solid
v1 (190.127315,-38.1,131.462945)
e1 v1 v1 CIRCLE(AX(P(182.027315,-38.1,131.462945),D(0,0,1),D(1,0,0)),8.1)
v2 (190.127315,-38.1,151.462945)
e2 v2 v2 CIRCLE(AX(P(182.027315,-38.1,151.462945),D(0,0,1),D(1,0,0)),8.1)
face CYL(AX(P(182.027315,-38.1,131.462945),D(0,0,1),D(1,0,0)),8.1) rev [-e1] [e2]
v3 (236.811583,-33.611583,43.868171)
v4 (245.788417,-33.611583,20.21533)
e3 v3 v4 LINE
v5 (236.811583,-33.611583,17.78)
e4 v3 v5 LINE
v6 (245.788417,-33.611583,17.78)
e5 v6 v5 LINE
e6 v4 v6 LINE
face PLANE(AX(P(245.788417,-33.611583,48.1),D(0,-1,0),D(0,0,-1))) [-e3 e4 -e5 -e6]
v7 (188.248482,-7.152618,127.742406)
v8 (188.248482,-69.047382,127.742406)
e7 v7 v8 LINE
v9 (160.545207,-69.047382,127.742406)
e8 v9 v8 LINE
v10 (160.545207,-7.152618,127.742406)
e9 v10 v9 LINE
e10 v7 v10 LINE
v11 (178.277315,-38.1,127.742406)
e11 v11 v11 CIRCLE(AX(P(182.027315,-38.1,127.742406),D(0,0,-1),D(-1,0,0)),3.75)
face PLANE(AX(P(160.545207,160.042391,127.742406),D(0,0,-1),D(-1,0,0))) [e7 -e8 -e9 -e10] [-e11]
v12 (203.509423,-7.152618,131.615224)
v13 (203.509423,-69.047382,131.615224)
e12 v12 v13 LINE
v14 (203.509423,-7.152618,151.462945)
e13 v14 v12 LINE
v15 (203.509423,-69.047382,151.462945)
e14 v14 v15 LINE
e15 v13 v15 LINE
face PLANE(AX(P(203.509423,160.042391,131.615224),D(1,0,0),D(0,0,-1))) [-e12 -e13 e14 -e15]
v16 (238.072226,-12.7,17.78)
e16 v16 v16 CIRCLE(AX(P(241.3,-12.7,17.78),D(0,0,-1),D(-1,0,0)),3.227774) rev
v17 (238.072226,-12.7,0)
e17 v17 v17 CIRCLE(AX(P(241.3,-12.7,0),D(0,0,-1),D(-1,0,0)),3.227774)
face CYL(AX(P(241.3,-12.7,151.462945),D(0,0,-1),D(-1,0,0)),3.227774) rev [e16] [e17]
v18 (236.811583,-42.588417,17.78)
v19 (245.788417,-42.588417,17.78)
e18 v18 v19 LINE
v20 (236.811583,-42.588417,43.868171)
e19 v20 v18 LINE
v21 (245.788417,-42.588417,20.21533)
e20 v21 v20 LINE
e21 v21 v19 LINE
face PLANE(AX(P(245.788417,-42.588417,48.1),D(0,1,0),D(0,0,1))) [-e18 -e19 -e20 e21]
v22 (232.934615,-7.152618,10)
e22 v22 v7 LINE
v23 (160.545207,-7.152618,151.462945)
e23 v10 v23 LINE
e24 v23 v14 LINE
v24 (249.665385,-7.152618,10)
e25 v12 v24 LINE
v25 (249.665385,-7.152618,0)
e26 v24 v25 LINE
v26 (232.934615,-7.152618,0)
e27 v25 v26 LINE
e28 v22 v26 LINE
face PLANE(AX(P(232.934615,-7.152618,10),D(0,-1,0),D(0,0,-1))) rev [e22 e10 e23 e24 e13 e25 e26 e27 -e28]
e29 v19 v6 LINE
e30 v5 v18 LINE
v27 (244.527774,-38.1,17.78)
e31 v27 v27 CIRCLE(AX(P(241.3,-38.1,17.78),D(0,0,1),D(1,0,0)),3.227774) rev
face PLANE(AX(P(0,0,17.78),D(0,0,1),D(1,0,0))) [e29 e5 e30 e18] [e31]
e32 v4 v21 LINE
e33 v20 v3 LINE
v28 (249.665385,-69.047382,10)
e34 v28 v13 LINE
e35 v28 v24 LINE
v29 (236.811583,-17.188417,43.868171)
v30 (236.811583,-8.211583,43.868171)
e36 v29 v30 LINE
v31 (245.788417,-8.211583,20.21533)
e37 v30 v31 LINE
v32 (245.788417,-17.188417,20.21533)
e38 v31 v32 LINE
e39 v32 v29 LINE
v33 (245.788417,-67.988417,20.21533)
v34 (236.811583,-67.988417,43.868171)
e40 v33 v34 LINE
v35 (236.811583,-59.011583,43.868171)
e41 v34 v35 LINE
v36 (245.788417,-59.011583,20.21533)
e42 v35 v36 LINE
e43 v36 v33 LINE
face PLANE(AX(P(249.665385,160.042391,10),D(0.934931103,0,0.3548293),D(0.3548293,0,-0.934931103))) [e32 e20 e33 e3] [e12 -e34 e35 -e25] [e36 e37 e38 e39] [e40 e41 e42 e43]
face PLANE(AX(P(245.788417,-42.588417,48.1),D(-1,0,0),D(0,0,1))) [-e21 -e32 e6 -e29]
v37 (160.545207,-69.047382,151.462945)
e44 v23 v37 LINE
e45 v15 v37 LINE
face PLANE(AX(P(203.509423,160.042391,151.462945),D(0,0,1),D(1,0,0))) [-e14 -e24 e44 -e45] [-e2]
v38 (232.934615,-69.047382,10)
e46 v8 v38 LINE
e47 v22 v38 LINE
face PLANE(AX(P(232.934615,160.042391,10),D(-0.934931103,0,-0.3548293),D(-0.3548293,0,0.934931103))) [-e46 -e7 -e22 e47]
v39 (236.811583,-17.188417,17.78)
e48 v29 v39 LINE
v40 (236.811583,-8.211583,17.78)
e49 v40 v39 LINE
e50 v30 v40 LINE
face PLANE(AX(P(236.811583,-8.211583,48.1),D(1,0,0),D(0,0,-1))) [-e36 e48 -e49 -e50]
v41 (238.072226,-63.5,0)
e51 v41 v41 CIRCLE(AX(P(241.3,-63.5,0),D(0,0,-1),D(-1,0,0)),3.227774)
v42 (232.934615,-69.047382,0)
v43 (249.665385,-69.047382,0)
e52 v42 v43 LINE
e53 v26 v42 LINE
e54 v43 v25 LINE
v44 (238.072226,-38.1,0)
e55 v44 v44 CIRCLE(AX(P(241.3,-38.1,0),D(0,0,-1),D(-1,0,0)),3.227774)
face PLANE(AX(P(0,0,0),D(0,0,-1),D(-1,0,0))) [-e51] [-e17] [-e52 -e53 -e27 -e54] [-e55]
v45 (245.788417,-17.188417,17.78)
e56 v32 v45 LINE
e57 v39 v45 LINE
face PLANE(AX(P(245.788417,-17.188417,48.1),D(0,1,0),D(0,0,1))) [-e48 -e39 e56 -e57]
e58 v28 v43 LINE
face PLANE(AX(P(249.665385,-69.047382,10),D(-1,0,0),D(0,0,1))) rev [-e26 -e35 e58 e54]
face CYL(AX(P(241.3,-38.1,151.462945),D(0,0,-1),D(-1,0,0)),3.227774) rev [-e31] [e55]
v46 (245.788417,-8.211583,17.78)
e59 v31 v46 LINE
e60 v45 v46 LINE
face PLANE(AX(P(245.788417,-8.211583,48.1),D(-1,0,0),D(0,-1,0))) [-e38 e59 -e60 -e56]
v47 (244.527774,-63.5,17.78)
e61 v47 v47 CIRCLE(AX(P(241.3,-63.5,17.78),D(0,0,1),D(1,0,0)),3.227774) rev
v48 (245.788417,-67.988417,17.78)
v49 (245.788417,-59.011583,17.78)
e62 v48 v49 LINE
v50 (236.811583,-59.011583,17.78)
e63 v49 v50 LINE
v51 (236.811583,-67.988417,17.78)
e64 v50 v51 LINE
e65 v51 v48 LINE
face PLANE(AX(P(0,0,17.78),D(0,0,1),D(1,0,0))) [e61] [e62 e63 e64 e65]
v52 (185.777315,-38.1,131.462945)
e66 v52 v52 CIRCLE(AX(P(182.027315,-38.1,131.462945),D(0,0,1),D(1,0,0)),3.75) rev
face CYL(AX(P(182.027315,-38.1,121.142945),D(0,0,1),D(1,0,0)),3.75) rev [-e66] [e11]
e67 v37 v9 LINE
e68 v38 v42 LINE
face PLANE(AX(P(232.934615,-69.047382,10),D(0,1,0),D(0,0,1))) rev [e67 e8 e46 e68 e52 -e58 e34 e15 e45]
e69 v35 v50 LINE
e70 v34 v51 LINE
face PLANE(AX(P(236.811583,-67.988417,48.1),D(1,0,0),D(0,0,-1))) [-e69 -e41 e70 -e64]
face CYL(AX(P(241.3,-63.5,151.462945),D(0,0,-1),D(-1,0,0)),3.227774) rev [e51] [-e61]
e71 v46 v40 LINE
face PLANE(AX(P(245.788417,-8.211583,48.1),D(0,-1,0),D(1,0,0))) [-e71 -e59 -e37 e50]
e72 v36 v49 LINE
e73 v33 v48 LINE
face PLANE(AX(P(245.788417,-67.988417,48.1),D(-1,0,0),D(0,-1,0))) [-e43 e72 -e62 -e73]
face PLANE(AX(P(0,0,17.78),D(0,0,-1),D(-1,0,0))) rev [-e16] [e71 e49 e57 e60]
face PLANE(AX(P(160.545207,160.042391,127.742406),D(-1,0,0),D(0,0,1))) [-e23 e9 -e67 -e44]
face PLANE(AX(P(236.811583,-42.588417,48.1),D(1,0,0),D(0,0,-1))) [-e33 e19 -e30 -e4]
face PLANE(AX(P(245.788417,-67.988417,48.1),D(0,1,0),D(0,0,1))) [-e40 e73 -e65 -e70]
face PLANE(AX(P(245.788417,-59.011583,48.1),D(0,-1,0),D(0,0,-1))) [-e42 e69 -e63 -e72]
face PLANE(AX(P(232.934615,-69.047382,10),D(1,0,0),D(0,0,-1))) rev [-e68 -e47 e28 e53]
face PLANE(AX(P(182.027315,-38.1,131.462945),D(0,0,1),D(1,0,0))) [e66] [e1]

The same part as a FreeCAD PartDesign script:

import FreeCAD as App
import Part
import Sketcher

V = App.Vector


def add_polygon(sketch, points):
    """Adds a closed chain of lines whose ends are joined by coincident constraints."""
    first, n = sketch.GeometryCount, len(points)
    for a, b in zip(points, points[1:] + points[:1]):
        sketch.addGeometry(Part.LineSegment(App.Vector(*a, 0), App.Vector(*b, 0)), False)
    for i in range(n):
        sketch.addConstraint(Sketcher.Constraint("Coincident", first + i, 2, first + (i + 1) % n, 1))

doc = App.newDocument("Part")
body = doc.addObject("PartDesign::Body", "Body")

sketch1 = doc.addObject("Sketcher::SketchObject", "Sketch")
body.addObject(sketch1)
sketch1.AttachmentSupport = (doc.XY_Plane, [""])
sketch1.MapMode = "FlatFace"
add_polygon(sketch1, [(232.934615, -7.152618), (232.934615, -69.047382), (249.665385, -69.047382), (249.665385, -7.152618)])
sketch1.addGeometry(Part.Circle(V(241.3, -63.5, 0), V(0, 0, 1), 3.04823), False)
sketch1.addGeometry(Part.Circle(V(241.3, -38.1, 0), V(0, 0, 1), 3.04823), False)
sketch1.addGeometry(Part.Circle(V(241.3, -12.7, 0), V(0, 0, 1), 3.04823), False)
sketch1.addConstraint([
    Sketcher.Constraint("Vertical", 0),
    Sketcher.Constraint("Horizontal", 1),
    Sketcher.Constraint("Vertical", 2),
    Sketcher.Constraint("Horizontal", 3),
    Sketcher.Constraint("Equal", 4, 5),
    Sketcher.Constraint("Equal", 5, 6),
    Sketcher.Constraint("Vertical", 4, 3, 5, 3),
    Sketcher.Constraint("Vertical", 5, 3, 6, 3),
    Sketcher.Constraint("DistanceX", -1, 1, 4, 3, 241.3),
    Sketcher.Constraint("DistanceY", 4, 3, -1, 1, 63.5),
    Sketcher.Constraint("DistanceY", 5, 3, -1, 1, 38.1),
    Sketcher.Constraint("DistanceY", 6, 3, -1, 1, 12.7),
    Sketcher.Constraint("Diameter", 4, 6.09646),
    Sketcher.Constraint("DistanceX", 1, 1, 1, 2, 16.73077),
    Sketcher.Constraint("DistanceY", 0, 2, 0, 1, 61.894765),
    Sketcher.Constraint("DistanceX", -1, 1, 0, 2, 232.934615),
    Sketcher.Constraint("DistanceY", 0, 2, -1, 1, 69.047382),
])
pad1 = doc.addObject("PartDesign::Pad", "Pad")
body.addObject(pad1)
pad1.Profile = sketch1
pad1.Length = 10

sketch2 = doc.addObject("Sketcher::SketchObject", "Sketch001")
body.addObject(sketch2)
sketch2.AttachmentSupport = (doc.XZ_Plane, [""])
sketch2.MapMode = "FlatFace"
sketch2.AttachmentOffset = App.Placement(V(0, 0, 69.047382), App.Rotation())
add_polygon(sketch2, [(249.665385, 10), (203.509423, 131.615224), (203.509423, 151.462945), (160.545207, 151.462945), (160.545207, 127.742406), (188.248482, 127.742406), (232.934615, 10)])
sketch2.addConstraint([
    Sketcher.Constraint("Vertical", 1),
    Sketcher.Constraint("Horizontal", 2),
    Sketcher.Constraint("Vertical", 3),
    Sketcher.Constraint("Horizontal", 4),
    Sketcher.Constraint("Horizontal", 6),
    Sketcher.Constraint("Parallel", 0, 5),
    Sketcher.Constraint("DistanceY", -1, 1, 5, 2, 10.0),
    Sketcher.Constraint("DistanceX", 6, 1, 6, 2, 16.73077),
    Sketcher.Constraint("DistanceY", 1, 1, 1, 2, 19.84772),
    Sketcher.Constraint("DistanceY", 3, 2, 3, 1, 23.720539),
    Sketcher.Constraint("DistanceX", 2, 2, 2, 1, 42.964216),
    Sketcher.Constraint("DistanceX", 4, 1, 4, 2, 27.703275),
    Sketcher.Constraint("DistanceX", 3, 2, 5, 2, 72.389408),
    Sketcher.Constraint("DistanceX", -1, 1, 0, 2, 203.509423),
])
pad2 = doc.addObject("PartDesign::Pad", "Pad001")
body.addObject(pad2)
pad2.Profile = sketch2
pad2.Length = 61.894765
pad2.Reversed = True

sketch3 = doc.addObject("Sketcher::SketchObject", "Sketch002")
body.addObject(sketch3)
sketch3.AttachmentSupport = (doc.XY_Plane, [""])
sketch3.MapMode = "FlatFace"
sketch3.addGeometry([
    Part.Circle(V(241.3, -63.5, 0), V(0, 0, 1), 3.227774),
    Part.Circle(V(241.3, -38.1, 0), V(0, 0, 1), 3.227774),
    Part.Circle(V(241.3, -12.7, 0), V(0, 0, 1), 3.227774),
], False)
sketch3.addConstraint([
    Sketcher.Constraint("Equal", 0, 1),
    Sketcher.Constraint("Equal", 1, 2),
    Sketcher.Constraint("Vertical", 0, 3, 1, 3),
    Sketcher.Constraint("Vertical", 1, 3, 2, 3),
    Sketcher.Constraint("DistanceX", -1, 1, 0, 3, 241.3),
    Sketcher.Constraint("DistanceY", 0, 3, -1, 1, 63.5),
    Sketcher.Constraint("DistanceY", 1, 3, -1, 1, 38.1),
    Sketcher.Constraint("DistanceY", 2, 3, -1, 1, 12.7),
    Sketcher.Constraint("Diameter", 0, 6.455548),
])
pocket1 = doc.addObject("PartDesign::Pocket", "Pocket")
body.addObject(pocket1)
pocket1.Profile = sketch3
pocket1.Type = "ThroughAll"
pocket1.Reversed = True

sketch4 = doc.addObject("Sketcher::SketchObject", "Sketch003")
body.addObject(sketch4)
sketch4.AttachmentSupport = (doc.XY_Plane, [""])
sketch4.MapMode = "FlatFace"
sketch4.AttachmentOffset = App.Placement(V(0, 0, 17.78), App.Rotation())
add_polygon(sketch4, [(236.811583, -59.011583), (236.811583, -67.988417), (245.788417, -67.988417), (245.788417, -59.011583)])
add_polygon(sketch4, [(236.811583, -33.611583), (236.811583, -42.588417), (245.788417, -42.588417), (245.788417, -33.611583)])
add_polygon(sketch4, [(236.811583, -8.211583), (236.811583, -17.188417), (245.788417, -17.188417), (245.788417, -8.211583)])
sketch4.addConstraint([
    Sketcher.Constraint("Vertical", 0),
    Sketcher.Constraint("Horizontal", 1),
    Sketcher.Constraint("Vertical", 2),
    Sketcher.Constraint("Horizontal", 3),
    Sketcher.Constraint("Vertical", 4),
    Sketcher.Constraint("Horizontal", 5),
    Sketcher.Constraint("Vertical", 6),
    Sketcher.Constraint("Horizontal", 7),
    Sketcher.Constraint("Vertical", 8),
    Sketcher.Constraint("Horizontal", 9),
    Sketcher.Constraint("Vertical", 10),
    Sketcher.Constraint("Horizontal", 11),
    Sketcher.Constraint("Vertical", 3, 2, 4, 2),
    Sketcher.Constraint("Vertical", 2, 2, 5, 2),
    Sketcher.Constraint("Vertical", 7, 2, 8, 2),
    Sketcher.Constraint("Vertical", 6, 2, 9, 2),
    Sketcher.Constraint("Equal", 11, 0),
    Sketcher.Constraint("Equal", 2, 4),
    Sketcher.Constraint("Equal", 6, 8),
    Sketcher.Constraint("DistanceY", 0, 2, 4, 2, 25.4),
    Sketcher.Constraint("DistanceY", 4, 2, 8, 2, 25.4),
    Sketcher.Constraint("DistanceX", 1, 1, 1, 2, 8.976834),
    Sketcher.Constraint("DistanceX", -1, 1, 0, 2, 236.811583),
    Sketcher.Constraint("DistanceY", 0, 2, -1, 1, 67.988417),
])
pocket2 = doc.addObject("PartDesign::Pocket", "Pocket001")
body.addObject(pocket2)
pocket2.Profile = sketch4
pocket2.Length = 30.32
pocket2.Reversed = True

sketch5 = doc.addObject("Sketcher::SketchObject", "Sketch004")
body.addObject(sketch5)
sketch5.AttachmentSupport = (doc.XY_Plane, [""])
sketch5.MapMode = "FlatFace"
sketch5.AttachmentOffset = App.Placement(V(0, 0, 151.462945), App.Rotation())
sketch5.addGeometry(Part.Circle(V(182.027315, -38.1, 0), V(0, 0, 1), 3.75), False)
sketch5.addConstraint([
    Sketcher.Constraint("Diameter", 0, 7.5),
    Sketcher.Constraint("DistanceY", 0, 3, -1, 1, 38.1),
    Sketcher.Constraint("DistanceX", -1, 1, 0, 3, 182.027315),
])
pocket3 = doc.addObject("PartDesign::Pocket", "Pocket002")
body.addObject(pocket3)
pocket3.Profile = sketch5
pocket3.Length = 30.32

sketch6 = doc.addObject("Sketcher::SketchObject", "Sketch005")
body.addObject(sketch6)
sketch6.AttachmentSupport = (doc.XY_Plane, [""])
sketch6.MapMode = "FlatFace"
sketch6.AttachmentOffset = App.Placement(V(0, 0, 151.462945), App.Rotation())
sketch6.addGeometry(Part.Circle(V(182.027315, -38.1, 0), V(0, 0, 1), 8.1), False)
sketch6.addConstraint([
    Sketcher.Constraint("Diameter", 0, 16.2),
    Sketcher.Constraint("DistanceY", 0, 3, -1, 1, 38.1),
    Sketcher.Constraint("DistanceX", -1, 1, 0, 3, 182.027315),
])
pocket4 = doc.addObject("PartDesign::Pocket", "Pocket003")
body.addObject(pocket4)
pocket4.Profile = sketch6
pocket4.Length = 20

doc.recompute()
